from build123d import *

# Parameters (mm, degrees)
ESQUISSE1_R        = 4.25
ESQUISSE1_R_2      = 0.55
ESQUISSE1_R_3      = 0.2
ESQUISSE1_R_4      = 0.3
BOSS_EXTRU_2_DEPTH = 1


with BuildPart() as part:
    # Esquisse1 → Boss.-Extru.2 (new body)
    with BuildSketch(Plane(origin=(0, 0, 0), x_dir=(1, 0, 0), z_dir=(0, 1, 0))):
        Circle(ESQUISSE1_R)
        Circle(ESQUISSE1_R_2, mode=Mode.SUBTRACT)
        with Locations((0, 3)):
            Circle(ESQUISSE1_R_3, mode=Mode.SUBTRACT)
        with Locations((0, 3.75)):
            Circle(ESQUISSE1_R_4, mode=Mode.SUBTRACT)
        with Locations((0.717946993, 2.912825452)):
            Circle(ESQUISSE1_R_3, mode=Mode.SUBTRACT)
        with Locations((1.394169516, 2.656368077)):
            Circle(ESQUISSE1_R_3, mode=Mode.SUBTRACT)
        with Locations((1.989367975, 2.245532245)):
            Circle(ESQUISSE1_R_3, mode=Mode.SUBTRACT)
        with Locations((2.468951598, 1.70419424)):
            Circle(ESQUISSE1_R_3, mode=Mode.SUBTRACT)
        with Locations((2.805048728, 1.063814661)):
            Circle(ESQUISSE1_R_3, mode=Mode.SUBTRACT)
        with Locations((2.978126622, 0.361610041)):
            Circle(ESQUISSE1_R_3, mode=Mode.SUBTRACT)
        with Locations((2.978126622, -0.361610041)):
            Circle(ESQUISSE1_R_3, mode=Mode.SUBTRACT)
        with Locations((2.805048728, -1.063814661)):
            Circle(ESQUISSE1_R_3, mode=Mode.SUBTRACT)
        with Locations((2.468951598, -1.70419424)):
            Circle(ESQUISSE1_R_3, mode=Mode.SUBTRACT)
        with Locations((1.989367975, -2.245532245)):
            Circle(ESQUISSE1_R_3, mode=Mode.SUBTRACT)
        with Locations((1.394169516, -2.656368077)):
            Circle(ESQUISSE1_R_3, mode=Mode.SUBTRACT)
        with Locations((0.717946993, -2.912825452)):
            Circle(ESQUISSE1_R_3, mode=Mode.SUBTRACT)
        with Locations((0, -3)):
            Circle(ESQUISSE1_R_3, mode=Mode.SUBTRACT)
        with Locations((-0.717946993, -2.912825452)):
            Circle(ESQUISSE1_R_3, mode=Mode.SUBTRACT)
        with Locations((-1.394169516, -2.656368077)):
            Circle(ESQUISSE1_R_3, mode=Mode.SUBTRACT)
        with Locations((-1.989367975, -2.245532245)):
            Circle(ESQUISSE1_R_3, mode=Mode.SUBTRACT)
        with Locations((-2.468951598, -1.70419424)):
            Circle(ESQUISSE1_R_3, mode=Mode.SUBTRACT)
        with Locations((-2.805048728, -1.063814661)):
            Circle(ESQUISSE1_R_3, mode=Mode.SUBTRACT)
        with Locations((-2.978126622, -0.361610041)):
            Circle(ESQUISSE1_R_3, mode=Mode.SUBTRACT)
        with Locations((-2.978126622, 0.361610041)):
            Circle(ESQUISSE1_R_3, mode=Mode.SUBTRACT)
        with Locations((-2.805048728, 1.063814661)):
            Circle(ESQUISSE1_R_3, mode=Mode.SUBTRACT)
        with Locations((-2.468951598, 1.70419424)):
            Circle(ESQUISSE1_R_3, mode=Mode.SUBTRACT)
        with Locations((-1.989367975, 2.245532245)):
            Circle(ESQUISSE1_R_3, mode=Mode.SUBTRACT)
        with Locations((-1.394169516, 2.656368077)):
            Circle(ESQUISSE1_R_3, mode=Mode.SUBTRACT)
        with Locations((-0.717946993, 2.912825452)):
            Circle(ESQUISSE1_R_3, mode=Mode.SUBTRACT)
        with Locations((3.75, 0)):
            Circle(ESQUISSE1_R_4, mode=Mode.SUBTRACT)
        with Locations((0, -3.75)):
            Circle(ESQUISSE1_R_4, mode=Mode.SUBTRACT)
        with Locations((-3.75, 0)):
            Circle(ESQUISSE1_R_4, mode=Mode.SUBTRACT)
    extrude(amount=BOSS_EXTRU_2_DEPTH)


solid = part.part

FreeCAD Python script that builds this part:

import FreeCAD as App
import Part
import Sketcher

V = App.Vector
Q = App.Units.Quantity

doc = App.newDocument("Part")
body = doc.addObject("PartDesign::Body", "Body")

sketch1 = body.newObject("Sketcher::SketchObject", "Sketch")
sketch1.AttachmentSupport = (doc.getObject("XZ_Plane"), [""])
sketch1.MapMode = "FlatFace"
sketch1.addGeometry(Part.Circle(V(0, 0, 0), V(0, 0, 1), 4.25), False)
sketch1.addGeometry(Part.Circle(V(0, 3.75, 0), V(0, 0, 1), 0.3), False)
sketch1.addGeometry(Part.Circle(V(-1.39, 2.66, 0), V(0, 0, 1), 0.2), False)
sketch1.addGeometry(Part.Circle(V(-1.99, 2.25, 0), V(0, 0, 1), 0.2), False)
sketch1.addGeometry(Part.Circle(V(-0.72, 2.91, 0), V(0, 0, 1), 0.2), False)
sketch1.addGeometry(Part.Circle(V(0, 3, 0), V(0, 0, 1), 0.2), False)
sketch1.addGeometry(Part.Circle(V(-2.47, 1.7, 0), V(0, 0, 1), 0.2), False)
sketch1.addGeometry(Part.Circle(V(-2.81, 1.06, 0), V(0, 0, 1), 0.2), False)
sketch1.addGeometry(Part.Circle(V(-2.98, 0.36, 0), V(0, 0, 1), 0.2), False)
sketch1.addGeometry(Part.Circle(V(0.72, 2.91, 0), V(0, 0, 1), 0.2), False)
sketch1.addGeometry(Part.Circle(V(1.39, 2.66, 0), V(0, 0, 1), 0.2), False)
sketch1.addGeometry(Part.Circle(V(1.99, 2.25, 0), V(0, 0, 1), 0.2), False)
sketch1.addGeometry(Part.Circle(V(2.47, 1.7, 0), V(0, 0, 1), 0.2), False)
sketch1.addGeometry(Part.Circle(V(2.81, 1.06, 0), V(0, 0, 1), 0.2), False)
sketch1.addGeometry(Part.Circle(V(2.98, 0.36, 0), V(0, 0, 1), 0.2), False)
sketch1.addGeometry(Part.Circle(V(-3.75, 0, 0), V(0, 0, 1), 0.3), False)
sketch1.addGeometry(Part.Circle(V(-2.98, -0.36, 0), V(0, 0, 1), 0.2), False)
sketch1.addGeometry(Part.Circle(V(-2.81, -1.06, 0), V(0, 0, 1), 0.2), False)
sketch1.addGeometry(Part.Circle(V(-2.47, -1.7, 0), V(0, 0, 1), 0.2), False)
sketch1.addGeometry(Part.Circle(V(0, 0, 0), V(0, 0, 1), 0.55), False)
sketch1.addGeometry(Part.Circle(V(-1.99, -2.25, 0), V(0, 0, 1), 0.2), False)
sketch1.addGeometry(Part.Circle(V(-1.39, -2.66, 0), V(0, 0, 1), 0.2), False)
sketch1.addGeometry(Part.Circle(V(-0.72, -2.91, 0), V(0, 0, 1), 0.2), False)
sketch1.addGeometry(Part.Circle(V(0, -3, 0), V(0, 0, 1), 0.2), False)
sketch1.addGeometry(Part.Circle(V(0, -3.75, 0), V(0, 0, 1), 0.3), False)
sketch1.addGeometry(Part.Circle(V(2.98, -0.36, 0), V(0, 0, 1), 0.2), False)
sketch1.addGeometry(Part.Circle(V(3.75, 0, 0), V(0, 0, 1), 0.3), False)
sketch1.addGeometry(Part.Circle(V(2.81, -1.06, 0), V(0, 0, 1), 0.2), False)
sketch1.addGeometry(Part.Circle(V(2.47, -1.7, 0), V(0, 0, 1), 0.2), False)
sketch1.addGeometry(Part.Circle(V(0.72, -2.91, 0), V(0, 0, 1), 0.2), False)
sketch1.addGeometry(Part.Circle(V(1.99, -2.25, 0), V(0, 0, 1), 0.2), False)
sketch1.addGeometry(Part.Circle(V(1.39, -2.66, 0), V(0, 0, 1), 0.2), False)
sketch1.addConstraint(Sketcher.Constraint("Coincident", 0, 3, -1, 1))
sketch1.addConstraint(Sketcher.Constraint("Coincident", 19, 3, -1, 1))
sketch1.addConstraint(Sketcher.Constraint("Equal", 2, 3))
sketch1.addConstraint(Sketcher.Constraint("Equal", 3, 4))
sketch1.addConstraint(Sketcher.Constraint("Equal", 4, 5))
sketch1.addConstraint(Sketcher.Constraint("Equal", 5, 6))
sketch1.addConstraint(Sketcher.Constraint("Equal", 6, 7))
sketch1.addConstraint(Sketcher.Constraint("Equal", 7, 8))
sketch1.addConstraint(Sketcher.Constraint("Equal", 8, 9))
sketch1.addConstraint(Sketcher.Constraint("Equal", 9, 10))
sketch1.addConstraint(Sketcher.Constraint("Equal", 10, 11))
sketch1.addConstraint(Sketcher.Constraint("Equal", 11, 12))
sketch1.addConstraint(Sketcher.Constraint("Equal", 12, 13))
sketch1.addConstraint(Sketcher.Constraint("Equal", 13, 14))
sketch1.addConstraint(Sketcher.Constraint("Equal", 1, 15))
sketch1.addConstraint(Sketcher.Constraint("Equal", 14, 16))
sketch1.addConstraint(Sketcher.Constraint("Equal", 16, 17))
sketch1.addConstraint(Sketcher.Constraint("Equal", 17, 18))
sketch1.addConstraint(Sketcher.Constraint("Equal", 18, 20))
sketch1.addConstraint(Sketcher.Constraint("Equal", 20, 21))
sketch1.addConstraint(Sketcher.Constraint("Equal", 21, 22))
sketch1.addConstraint(Sketcher.Constraint("Equal", 22, 23))
sketch1.addConstraint(Sketcher.Constraint("Equal", 15, 24))
sketch1.addConstraint(Sketcher.Constraint("Equal", 23, 25))
sketch1.addConstraint(Sketcher.Constraint("Equal", 24, 26))
sketch1.addConstraint(Sketcher.Constraint("Equal", 25, 27))
sketch1.addConstraint(Sketcher.Constraint("Equal", 27, 28))
sketch1.addConstraint(Sketcher.Constraint("Equal", 28, 29))
sketch1.addConstraint(Sketcher.Constraint("Equal", 29, 30))
sketch1.addConstraint(Sketcher.Constraint("Equal", 30, 31))
sketch1.addConstraint(Sketcher.Constraint("Symmetric", 14, 3, 16, 3, -1, 1))
sketch1.addConstraint(Sketcher.Constraint("Symmetric", 13, 3, 17, 3, -1, 1))
sketch1.addConstraint(Sketcher.Constraint("Symmetric", 12, 3, 18, 3, -1, 1))
sketch1.addConstraint(Sketcher.Constraint("Symmetric", 11, 3, 20, 3, -1, 1))
sketch1.addConstraint(Sketcher.Constraint("Symmetric", 10, 3, 21, 3, -1, 1))
sketch1.addConstraint(Sketcher.Constraint("Symmetric", 9, 3, 22, 3, -1, 1))
sketch1.addConstraint(Sketcher.Constraint("Symmetric", 5, 3, 23, 3, -1, 1))
sketch1.addConstraint(Sketcher.Constraint("Symmetric", 1, 3, 24, 3, -1, 1))
sketch1.addConstraint(Sketcher.Constraint("Symmetric", 8, 3, 25, 3, -1, 1))
sketch1.addConstraint(Sketcher.Constraint("Symmetric", 15, 3, 26, 3, -1, 1))
sketch1.addConstraint(Sketcher.Constraint("Symmetric", 7, 3, 27, 3, -1, 1))
sketch1.addConstraint(Sketcher.Constraint("Symmetric", 6, 3, 28, 3, -1, 1))
sketch1.addConstraint(Sketcher.Constraint("Symmetric", 4, 3, 29, 3, -1, 1))
sketch1.addConstraint(Sketcher.Constraint("Symmetric", 3, 3, 30, 3, -1, 1))
sketch1.addConstraint(Sketcher.Constraint("Symmetric", 2, 3, 31, 3, -1, 1))
sketch1.addConstraint(Sketcher.Constraint("Symmetric", 4, 3, 9, 3, -2))
sketch1.addConstraint(Sketcher.Constraint("Symmetric", 2, 3, 10, 3, -2))
sketch1.addConstraint(Sketcher.Constraint("Symmetric", 3, 3, 11, 3, -2))
sketch1.addConstraint(Sketcher.Constraint("Symmetric", 6, 3, 12, 3, -2))
sketch1.addConstraint(Sketcher.Constraint("Symmetric", 7, 3, 13, 3, -2))
sketch1.addConstraint(Sketcher.Constraint("Symmetric", 8, 3, 14, 3, -2))
sketch1.addConstraint(Sketcher.Constraint("PointOnObject", 1, 3, -2))
sketch1.addConstraint(Sketcher.Constraint("PointOnObject", 5, 3, -2))
sketch1.addConstraint(Sketcher.Constraint("PointOnObject", 15, 3, -1))
sketch1.addConstraint(Sketcher.Constraint("Diameter", 0, Q("8.5 mm")))
sketch1.addConstraint(Sketcher.Constraint("Diameter", 1, Q("0.6 mm")))
sketch1.addConstraint(Sketcher.Constraint("Diameter", 2, Q("0.4 mm")))
sketch1.addConstraint(Sketcher.Constraint("Diameter", 19, Q("1.1 mm")))
sketch1.addConstraint(Sketcher.Constraint("DistanceY", -1, 1, 5, 3, Q("3 mm")))
sketch1.addConstraint(Sketcher.Constraint("DistanceY", -1, 1, 1, 3, Q("3.75 mm")))
sketch1.addConstraint(Sketcher.Constraint("DistanceX", 15, 3, -1, 1, Q("3.75 mm")))
sketch1.addConstraint(Sketcher.Constraint("DistanceX", 3, 3, 2, 3, Q("0.595198 mm")))
sketch1.addConstraint(Sketcher.Constraint("DistanceX", 7, 3, 4, 3, Q("2.087102 mm")))
sketch1.addConstraint(Sketcher.Constraint("DistanceX", 2, 3, -1, 1, Q("1.39417 mm")))
sketch1.addConstraint(Sketcher.Constraint("DistanceY", -1, 1, 2, 3, Q("2.656368 mm")))
sketch1.addConstraint(Sketcher.Constraint("DistanceX", 6, 3, -1, 1, Q("2.468952 mm")))
sketch1.addConstraint(Sketcher.Constraint("DistanceX", 7, 3, -1, 1, Q("2.805049 mm")))
sketch1.addConstraint(Sketcher.Constraint("DistanceY", -1, 1, 8, 3, Q("0.36161 mm")))
sketch1.addConstraint(Sketcher.Constraint("DistanceY", 6, 3, 3, 3, Q("0.541338 mm")))
sketch1.addConstraint(Sketcher.Constraint("DistanceY", 6, 3, 4, 3, Q("1.208631 mm")))
sketch1.addConstraint(Sketcher.Constraint("DistanceY", 7, 3, 6, 3, Q("0.64038 mm")))
sketch1.addConstraint(Sketcher.Constraint("DistanceX", 8, 3, 3, 3, Q("0.988759 mm")))
sketch1.addConstraint(Sketcher.Constraint("DistanceY", 17, 3, 7, 3, Q("2.127629 mm")))
pad1 = body.newObject("PartDesign::Pad", "Pad")
pad1.Profile = sketch1
pad1.Length = 1
pad1.Reversed = True

doc.recompute()
